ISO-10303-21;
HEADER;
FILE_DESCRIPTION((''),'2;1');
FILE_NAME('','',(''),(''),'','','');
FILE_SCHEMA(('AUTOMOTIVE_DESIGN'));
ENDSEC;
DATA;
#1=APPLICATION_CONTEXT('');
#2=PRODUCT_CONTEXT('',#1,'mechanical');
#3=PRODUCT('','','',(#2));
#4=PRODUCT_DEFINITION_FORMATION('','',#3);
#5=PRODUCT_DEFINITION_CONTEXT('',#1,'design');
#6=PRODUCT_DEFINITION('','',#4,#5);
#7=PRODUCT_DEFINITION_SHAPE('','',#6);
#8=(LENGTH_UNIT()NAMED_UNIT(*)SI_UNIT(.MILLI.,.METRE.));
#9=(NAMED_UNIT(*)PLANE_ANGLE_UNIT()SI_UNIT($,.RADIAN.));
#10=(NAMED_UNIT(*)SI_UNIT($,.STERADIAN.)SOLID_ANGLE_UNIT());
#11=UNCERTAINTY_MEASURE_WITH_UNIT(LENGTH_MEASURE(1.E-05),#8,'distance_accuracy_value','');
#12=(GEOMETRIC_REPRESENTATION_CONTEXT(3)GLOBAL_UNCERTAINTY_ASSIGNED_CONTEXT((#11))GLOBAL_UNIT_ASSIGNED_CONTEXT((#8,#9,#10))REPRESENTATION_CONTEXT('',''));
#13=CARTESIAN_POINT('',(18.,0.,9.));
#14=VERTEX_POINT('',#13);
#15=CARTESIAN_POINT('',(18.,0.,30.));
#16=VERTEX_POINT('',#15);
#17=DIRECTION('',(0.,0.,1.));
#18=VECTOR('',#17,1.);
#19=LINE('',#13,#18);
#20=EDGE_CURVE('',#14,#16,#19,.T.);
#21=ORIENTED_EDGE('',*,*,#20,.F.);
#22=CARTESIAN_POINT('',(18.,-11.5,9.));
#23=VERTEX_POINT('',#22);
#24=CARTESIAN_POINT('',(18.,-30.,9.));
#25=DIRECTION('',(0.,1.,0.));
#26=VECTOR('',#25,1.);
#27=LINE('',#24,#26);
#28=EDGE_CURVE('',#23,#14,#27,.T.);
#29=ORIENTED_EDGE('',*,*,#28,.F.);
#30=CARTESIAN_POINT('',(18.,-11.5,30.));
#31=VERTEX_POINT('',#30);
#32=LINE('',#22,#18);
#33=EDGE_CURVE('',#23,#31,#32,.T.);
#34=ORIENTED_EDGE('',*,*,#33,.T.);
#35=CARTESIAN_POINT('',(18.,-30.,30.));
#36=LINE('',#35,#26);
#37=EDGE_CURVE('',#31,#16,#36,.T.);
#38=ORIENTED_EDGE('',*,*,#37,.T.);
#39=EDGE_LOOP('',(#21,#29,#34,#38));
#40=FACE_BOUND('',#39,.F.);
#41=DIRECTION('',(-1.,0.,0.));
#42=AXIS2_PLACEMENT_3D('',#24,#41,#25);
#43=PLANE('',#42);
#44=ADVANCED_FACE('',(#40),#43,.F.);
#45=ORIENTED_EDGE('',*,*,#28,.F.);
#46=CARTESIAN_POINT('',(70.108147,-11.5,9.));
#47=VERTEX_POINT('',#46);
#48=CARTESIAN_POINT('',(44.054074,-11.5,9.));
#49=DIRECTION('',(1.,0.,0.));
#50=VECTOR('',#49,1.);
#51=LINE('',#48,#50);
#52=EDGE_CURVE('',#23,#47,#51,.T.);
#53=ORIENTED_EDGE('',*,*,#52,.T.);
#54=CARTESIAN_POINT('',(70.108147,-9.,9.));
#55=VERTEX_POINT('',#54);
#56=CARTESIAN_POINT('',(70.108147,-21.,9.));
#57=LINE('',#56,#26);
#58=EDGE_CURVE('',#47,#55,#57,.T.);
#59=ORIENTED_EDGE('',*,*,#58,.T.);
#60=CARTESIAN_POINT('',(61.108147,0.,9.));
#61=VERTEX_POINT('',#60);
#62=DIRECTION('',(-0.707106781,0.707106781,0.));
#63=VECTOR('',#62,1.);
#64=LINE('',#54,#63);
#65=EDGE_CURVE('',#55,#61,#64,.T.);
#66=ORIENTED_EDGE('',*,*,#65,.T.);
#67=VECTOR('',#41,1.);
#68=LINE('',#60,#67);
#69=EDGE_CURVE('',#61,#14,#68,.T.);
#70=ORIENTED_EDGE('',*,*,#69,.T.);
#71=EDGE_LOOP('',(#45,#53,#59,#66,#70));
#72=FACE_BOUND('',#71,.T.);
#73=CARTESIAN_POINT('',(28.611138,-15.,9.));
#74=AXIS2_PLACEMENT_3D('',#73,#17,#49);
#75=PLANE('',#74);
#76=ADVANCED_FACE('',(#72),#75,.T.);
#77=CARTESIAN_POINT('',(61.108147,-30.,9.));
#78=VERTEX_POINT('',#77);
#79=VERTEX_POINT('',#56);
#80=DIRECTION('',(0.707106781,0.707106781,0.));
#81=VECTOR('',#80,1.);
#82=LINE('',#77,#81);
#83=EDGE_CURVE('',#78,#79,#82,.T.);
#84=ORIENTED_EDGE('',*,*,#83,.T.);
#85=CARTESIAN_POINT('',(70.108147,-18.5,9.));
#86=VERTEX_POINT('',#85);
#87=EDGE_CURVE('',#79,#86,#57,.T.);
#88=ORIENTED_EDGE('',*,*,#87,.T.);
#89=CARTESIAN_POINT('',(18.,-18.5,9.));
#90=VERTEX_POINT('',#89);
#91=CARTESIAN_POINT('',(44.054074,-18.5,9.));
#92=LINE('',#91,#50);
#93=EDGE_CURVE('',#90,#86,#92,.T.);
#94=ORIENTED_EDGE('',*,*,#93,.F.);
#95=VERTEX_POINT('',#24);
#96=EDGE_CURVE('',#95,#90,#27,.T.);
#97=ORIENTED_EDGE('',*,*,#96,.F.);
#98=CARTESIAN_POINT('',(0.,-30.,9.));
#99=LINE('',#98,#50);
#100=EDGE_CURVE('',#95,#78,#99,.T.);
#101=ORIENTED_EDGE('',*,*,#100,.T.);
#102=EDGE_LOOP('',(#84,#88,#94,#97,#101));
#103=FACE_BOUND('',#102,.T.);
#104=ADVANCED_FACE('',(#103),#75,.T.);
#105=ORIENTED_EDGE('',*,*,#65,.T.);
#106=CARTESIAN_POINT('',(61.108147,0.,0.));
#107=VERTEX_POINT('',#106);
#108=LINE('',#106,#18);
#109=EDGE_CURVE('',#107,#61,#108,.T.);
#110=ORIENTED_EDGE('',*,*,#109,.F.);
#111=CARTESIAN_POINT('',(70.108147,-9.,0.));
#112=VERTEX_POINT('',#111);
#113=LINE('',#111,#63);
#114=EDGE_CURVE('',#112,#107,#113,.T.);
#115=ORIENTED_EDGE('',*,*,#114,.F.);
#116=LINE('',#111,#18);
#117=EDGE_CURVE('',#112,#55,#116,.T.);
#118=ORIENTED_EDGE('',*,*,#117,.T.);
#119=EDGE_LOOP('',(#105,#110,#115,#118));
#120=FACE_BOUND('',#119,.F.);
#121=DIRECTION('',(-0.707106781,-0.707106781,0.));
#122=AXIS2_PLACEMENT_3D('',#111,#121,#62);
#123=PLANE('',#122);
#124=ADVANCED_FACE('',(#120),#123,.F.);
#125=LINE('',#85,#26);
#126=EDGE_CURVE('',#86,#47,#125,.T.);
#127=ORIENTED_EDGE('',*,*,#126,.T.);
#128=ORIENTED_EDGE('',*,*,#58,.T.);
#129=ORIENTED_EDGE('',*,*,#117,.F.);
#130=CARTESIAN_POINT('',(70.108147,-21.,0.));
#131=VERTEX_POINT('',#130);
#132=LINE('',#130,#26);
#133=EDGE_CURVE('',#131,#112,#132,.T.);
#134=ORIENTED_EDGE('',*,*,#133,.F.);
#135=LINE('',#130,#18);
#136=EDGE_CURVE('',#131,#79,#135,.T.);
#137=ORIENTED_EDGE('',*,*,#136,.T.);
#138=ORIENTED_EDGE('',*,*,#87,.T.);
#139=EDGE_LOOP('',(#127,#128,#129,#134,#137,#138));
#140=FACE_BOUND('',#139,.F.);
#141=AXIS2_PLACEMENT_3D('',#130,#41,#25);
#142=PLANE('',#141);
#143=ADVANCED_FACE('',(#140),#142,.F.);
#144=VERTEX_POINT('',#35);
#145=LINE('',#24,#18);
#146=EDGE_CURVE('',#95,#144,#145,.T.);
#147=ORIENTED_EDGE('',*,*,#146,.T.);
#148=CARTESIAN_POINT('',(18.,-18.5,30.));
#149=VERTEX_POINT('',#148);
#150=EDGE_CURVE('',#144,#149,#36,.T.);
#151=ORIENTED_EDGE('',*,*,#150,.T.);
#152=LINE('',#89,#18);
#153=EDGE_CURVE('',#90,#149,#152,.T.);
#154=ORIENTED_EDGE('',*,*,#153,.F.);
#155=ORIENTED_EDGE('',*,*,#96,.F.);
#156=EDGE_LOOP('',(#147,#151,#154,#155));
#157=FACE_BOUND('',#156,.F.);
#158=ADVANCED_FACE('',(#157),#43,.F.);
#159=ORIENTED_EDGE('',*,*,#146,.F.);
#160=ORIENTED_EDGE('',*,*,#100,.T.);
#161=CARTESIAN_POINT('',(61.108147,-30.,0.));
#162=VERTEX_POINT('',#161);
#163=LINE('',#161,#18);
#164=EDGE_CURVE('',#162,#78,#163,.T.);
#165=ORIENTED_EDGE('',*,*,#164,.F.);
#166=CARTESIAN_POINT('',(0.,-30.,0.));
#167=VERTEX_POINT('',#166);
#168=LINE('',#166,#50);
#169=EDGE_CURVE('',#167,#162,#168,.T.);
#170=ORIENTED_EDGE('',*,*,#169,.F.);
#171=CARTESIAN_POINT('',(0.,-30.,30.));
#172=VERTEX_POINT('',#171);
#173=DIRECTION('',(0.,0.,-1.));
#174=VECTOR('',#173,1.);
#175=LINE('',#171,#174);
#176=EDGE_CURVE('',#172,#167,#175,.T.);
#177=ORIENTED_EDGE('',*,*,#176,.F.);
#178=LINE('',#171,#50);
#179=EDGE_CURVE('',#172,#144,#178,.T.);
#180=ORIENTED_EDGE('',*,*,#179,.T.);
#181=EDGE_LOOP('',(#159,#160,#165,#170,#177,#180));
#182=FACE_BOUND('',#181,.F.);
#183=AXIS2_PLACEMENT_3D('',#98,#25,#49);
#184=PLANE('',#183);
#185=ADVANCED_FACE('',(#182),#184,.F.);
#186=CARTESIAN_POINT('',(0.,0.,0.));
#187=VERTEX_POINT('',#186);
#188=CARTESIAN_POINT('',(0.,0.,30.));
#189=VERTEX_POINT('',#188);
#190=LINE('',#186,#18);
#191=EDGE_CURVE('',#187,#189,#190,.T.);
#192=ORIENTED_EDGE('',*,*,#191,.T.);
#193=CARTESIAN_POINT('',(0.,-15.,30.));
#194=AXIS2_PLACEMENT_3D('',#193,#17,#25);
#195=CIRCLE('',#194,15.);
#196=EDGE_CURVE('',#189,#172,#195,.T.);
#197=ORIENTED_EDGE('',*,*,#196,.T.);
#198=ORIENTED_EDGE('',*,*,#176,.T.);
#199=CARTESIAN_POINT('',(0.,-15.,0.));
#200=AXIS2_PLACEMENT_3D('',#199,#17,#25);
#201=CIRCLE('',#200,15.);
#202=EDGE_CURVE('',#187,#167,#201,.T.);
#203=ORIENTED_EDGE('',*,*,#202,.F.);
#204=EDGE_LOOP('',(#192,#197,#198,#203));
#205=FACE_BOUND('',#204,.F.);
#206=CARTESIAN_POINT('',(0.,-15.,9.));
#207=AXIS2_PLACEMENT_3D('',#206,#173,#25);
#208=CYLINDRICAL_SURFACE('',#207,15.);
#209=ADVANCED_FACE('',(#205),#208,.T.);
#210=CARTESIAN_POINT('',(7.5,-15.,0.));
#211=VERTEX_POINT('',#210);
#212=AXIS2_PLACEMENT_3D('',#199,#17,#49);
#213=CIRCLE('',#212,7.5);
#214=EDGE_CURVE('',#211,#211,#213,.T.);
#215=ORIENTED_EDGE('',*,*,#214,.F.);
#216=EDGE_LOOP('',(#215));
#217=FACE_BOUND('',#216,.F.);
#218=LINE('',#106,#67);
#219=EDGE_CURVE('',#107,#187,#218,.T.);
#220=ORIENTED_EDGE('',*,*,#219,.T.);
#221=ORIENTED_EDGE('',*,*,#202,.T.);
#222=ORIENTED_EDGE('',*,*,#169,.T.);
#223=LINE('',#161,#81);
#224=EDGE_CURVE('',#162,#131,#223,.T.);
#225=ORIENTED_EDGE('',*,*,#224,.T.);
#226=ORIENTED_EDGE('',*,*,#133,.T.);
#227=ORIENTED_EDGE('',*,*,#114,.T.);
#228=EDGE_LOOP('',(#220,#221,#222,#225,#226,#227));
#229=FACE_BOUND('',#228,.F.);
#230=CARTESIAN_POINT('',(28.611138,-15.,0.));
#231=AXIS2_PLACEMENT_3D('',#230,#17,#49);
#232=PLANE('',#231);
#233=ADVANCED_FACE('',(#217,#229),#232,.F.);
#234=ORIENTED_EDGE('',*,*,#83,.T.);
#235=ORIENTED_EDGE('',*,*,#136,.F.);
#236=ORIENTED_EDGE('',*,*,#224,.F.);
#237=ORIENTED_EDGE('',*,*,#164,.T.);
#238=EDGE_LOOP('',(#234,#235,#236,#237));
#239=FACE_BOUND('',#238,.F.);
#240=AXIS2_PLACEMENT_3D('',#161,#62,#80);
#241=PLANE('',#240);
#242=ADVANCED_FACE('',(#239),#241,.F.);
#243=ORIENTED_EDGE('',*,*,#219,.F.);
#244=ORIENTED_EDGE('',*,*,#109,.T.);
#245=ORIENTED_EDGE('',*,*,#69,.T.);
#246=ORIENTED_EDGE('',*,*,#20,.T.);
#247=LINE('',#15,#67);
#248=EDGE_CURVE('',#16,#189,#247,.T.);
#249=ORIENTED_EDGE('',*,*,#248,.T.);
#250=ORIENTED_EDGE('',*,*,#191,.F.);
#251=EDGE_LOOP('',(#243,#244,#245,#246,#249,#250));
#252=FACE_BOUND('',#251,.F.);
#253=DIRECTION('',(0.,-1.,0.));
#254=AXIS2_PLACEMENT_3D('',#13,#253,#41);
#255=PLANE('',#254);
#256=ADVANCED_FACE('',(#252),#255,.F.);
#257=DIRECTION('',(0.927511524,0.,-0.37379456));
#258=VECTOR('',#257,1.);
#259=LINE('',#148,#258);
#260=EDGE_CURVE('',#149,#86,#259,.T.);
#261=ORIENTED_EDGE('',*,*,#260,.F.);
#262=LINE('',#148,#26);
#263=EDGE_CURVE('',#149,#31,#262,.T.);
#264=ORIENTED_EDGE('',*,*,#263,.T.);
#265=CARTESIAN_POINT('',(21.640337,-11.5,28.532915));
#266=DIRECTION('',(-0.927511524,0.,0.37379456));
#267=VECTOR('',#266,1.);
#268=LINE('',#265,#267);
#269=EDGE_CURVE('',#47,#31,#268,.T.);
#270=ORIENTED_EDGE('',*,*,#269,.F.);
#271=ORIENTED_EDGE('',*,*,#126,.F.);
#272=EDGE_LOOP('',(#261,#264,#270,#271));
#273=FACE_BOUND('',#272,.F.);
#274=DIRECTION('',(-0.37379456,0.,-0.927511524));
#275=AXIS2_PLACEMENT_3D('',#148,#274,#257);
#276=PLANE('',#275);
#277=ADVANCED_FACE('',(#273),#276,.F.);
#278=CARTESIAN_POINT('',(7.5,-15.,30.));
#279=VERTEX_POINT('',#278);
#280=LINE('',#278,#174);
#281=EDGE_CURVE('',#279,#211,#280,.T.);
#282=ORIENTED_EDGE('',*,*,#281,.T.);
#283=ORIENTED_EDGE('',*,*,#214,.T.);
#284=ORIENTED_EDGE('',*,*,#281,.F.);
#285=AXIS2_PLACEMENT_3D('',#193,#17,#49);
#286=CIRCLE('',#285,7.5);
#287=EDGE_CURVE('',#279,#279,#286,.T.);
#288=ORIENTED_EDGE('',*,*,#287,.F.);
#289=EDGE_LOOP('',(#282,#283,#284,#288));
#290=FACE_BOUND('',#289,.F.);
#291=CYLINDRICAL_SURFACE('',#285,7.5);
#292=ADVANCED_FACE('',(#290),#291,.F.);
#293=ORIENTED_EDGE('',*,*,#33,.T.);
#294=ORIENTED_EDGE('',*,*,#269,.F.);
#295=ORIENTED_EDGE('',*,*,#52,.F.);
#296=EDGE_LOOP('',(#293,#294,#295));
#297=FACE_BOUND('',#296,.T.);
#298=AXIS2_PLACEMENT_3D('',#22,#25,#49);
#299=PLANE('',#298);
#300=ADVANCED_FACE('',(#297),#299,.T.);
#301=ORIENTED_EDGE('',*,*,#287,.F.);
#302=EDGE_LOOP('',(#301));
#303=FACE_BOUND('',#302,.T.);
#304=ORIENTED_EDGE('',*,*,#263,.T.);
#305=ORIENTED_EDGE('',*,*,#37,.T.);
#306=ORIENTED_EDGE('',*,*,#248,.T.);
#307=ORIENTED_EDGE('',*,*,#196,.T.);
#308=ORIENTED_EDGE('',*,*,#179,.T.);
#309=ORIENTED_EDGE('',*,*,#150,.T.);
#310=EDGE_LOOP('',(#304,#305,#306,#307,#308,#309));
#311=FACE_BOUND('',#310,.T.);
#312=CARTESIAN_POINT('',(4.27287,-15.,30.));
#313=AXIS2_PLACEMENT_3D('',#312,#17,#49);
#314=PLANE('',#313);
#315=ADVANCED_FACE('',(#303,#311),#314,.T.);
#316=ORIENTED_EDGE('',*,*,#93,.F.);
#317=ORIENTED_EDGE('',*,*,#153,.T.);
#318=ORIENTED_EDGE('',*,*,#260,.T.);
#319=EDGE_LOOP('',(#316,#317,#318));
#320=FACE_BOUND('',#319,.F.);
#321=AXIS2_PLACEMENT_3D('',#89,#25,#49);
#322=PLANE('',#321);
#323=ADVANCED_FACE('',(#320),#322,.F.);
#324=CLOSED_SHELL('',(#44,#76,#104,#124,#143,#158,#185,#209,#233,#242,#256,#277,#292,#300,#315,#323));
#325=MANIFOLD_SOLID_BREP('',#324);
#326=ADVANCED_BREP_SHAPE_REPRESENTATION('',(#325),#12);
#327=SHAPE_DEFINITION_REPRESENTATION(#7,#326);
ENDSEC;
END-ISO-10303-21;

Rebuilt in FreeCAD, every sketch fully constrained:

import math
import FreeCAD as App
import Part
import Sketcher


def add_polygon(sketch, points):
    """Adds a closed chain of lines whose ends are joined by coincident constraints."""
    first, n = sketch.GeometryCount, len(points)
    for a, b in zip(points, points[1:] + points[:1]):
        sketch.addGeometry(Part.LineSegment(App.Vector(*a, 0), App.Vector(*b, 0)), False)
    for i in range(n):
        sketch.addConstraint(Sketcher.Constraint("Coincident", first + i, 2, first + (i + 1) % n, 1))

doc = App.newDocument("Part")
body = doc.addObject("PartDesign::Body", "Body")

# Sketch on XY plane
sketch1 = doc.addObject("Sketcher::SketchObject", "Sketch")
body.addObject(sketch1)
sketch1.AttachmentSupport = (doc.XY_Plane, [""])
sketch1.MapMode = "FlatFace"
sketch1.addGeometry(Part.LineSegment(App.Vector(61, 0, 0), App.Vector(0, 0, 0)), False)
sketch1.addGeometry(Part.ArcOfCircle(Part.Circle(App.Vector(0, -15, 0), App.Vector(0, 0, 1), 15), math.radians(90), math.radians(270)), False)
sketch1.addGeometry(Part.LineSegment(App.Vector(0, -30, 0), App.Vector(61, -30, 0)), False)
sketch1.addGeometry(Part.LineSegment(App.Vector(61, -30, 0), App.Vector(70, -21, 0)), False)
sketch1.addGeometry(Part.LineSegment(App.Vector(70, -21, 0), App.Vector(70, -9, 0)), False)
sketch1.addGeometry(Part.LineSegment(App.Vector(70, -9, 0), App.Vector(61, 0, 0)), False)
sketch1.addConstraint(Sketcher.Constraint("Tangent", 0, 2, 1, 1))
sketch1.addConstraint(Sketcher.Constraint("Tangent", 1, 2, 2, 1))
sketch1.addConstraint(Sketcher.Constraint("Coincident", 2, 2, 3, 1))
sketch1.addConstraint(Sketcher.Constraint("Coincident", 3, 2, 4, 1))
sketch1.addConstraint(Sketcher.Constraint("Coincident", 4, 2, 5, 1))
sketch1.addConstraint(Sketcher.Constraint("Coincident", 5, 2, 0, 1))
sketch1.addConstraint(Sketcher.Constraint("Horizontal", 0))
sketch1.addConstraint(Sketcher.Constraint("Horizontal", 2))
sketch1.addConstraint(Sketcher.Constraint("Vertical", 4))
sketch1.addConstraint(Sketcher.Constraint("Coincident", 0, 2, -1, 1))
sketch1.addConstraint(Sketcher.Constraint("Perpendicular", 3, 5))
sketch1.addConstraint(Sketcher.Constraint("Vertical", 2, 2, 5, 2))
sketch1.addConstraint(Sketcher.Constraint("Equal", 3, 5))
sketch1.addConstraint(Sketcher.Constraint("Radius", 1, 15.0))
sketch1.addConstraint(Sketcher.Constraint("DistanceY", 4, 1, 4, 2, 12.0))
sketch1.addConstraint(Sketcher.Constraint("DistanceX", 0, 2, 0, 1, 61.108147))
pad1 = doc.addObject("PartDesign::Pad", "Pad")
body.addObject(pad1)
pad1.Profile = sketch1
pad1.Length = 9

# Sketch on XY plane
sketch2 = doc.addObject("Sketcher::SketchObject", "Sketch001")
body.addObject(sketch2)
sketch2.AttachmentSupport = (doc.XY_Plane, [""])
sketch2.MapMode = "FlatFace"
sketch2.AttachmentOffset = App.Placement(App.Vector(0, 0, 9), App.Rotation())
sketch2.addGeometry(Part.LineSegment(App.Vector(18, -30, 0), App.Vector(18, 0, 0)), False)
sketch2.addGeometry(Part.LineSegment(App.Vector(18, 0, 0), App.Vector(0, 0, 0)), False)
sketch2.addGeometry(Part.ArcOfCircle(Part.Circle(App.Vector(0, -15, 0), App.Vector(0, 0, 1), 15), math.radians(90), math.radians(270)), False)
sketch2.addGeometry(Part.LineSegment(App.Vector(0, -30, 0), App.Vector(18, -30, 0)), False)
sketch2.addConstraint(Sketcher.Constraint("Coincident", 0, 2, 1, 1))
sketch2.addConstraint(Sketcher.Constraint("Tangent", 1, 2, 2, 1))
sketch2.addConstraint(Sketcher.Constraint("Tangent", 2, 2, 3, 1))
sketch2.addConstraint(Sketcher.Constraint("Coincident", 3, 2, 0, 1))
sketch2.addConstraint(Sketcher.Constraint("Vertical", 0))
sketch2.addConstraint(Sketcher.Constraint("Horizontal", 1))
sketch2.addConstraint(Sketcher.Constraint("Horizontal", 3))
sketch2.addConstraint(Sketcher.Constraint("Coincident", 1, 2, -1, 1))
sketch2.addConstraint(Sketcher.Constraint("Radius", 2, 15.0))
sketch2.addConstraint(Sketcher.Constraint("DistanceX", 1, 2, 1, 1, 18.0))
pad2 = doc.addObject("PartDesign::Pad", "Pad001")
body.addObject(pad2)
pad2.Profile = sketch2
pad2.Length = 21

# Sketch on XY plane
sketch3 = doc.addObject("Sketcher::SketchObject", "Sketch002")
body.addObject(sketch3)
sketch3.AttachmentSupport = (doc.XY_Plane, [""])
sketch3.MapMode = "FlatFace"
sketch3.AttachmentOffset = App.Placement(App.Vector(0, 0, 30), App.Rotation())
sketch3.addGeometry(Part.Circle(App.Vector(0, -15, 0), App.Vector(0, 0, 1), 8), False)
sketch3.addConstraint(Sketcher.Constraint("PointOnObject", 0, 3, -2))
sketch3.addConstraint(Sketcher.Constraint("Diameter", 0, 15.0))
sketch3.addConstraint(Sketcher.Constraint("DistanceY", 0, 3, -1, 1, 15.0))
pocket1 = doc.addObject("PartDesign::Pocket", "Pocket")
body.addObject(pocket1)
pocket1.Profile = sketch3
pocket1.Length = 37.3

# Sketch on XY plane
sketch4 = doc.addObject("Sketcher::SketchObject", "Sketch003")
body.addObject(sketch4)
sketch4.AttachmentSupport = (doc.XY_Plane, [""])
sketch4.MapMode = "FlatFace"
sketch4.AttachmentOffset = App.Placement(App.Vector(0, 0, 9), App.Rotation())
add_polygon(sketch4, [(18, -12), (18, -18), (70, -18), (70, -12)])  # lines 0-3
sketch4.addConstraint(Sketcher.Constraint("Vertical", 0))
sketch4.addConstraint(Sketcher.Constraint("Horizontal", 1))
sketch4.addConstraint(Sketcher.Constraint("Vertical", 2))
sketch4.addConstraint(Sketcher.Constraint("Horizontal", 3))
sketch4.addConstraint(Sketcher.Constraint("DistanceY", 0, 2, 0, 1, 7.0))
sketch4.addConstraint(Sketcher.Constraint("DistanceX", -1, 1, 0, 2, 18.0))
sketch4.addConstraint(Sketcher.Constraint("DistanceY", 0, 2, -1, 1, 18.5))
sketch4.addConstraint(Sketcher.Constraint("DistanceX", 1, 1, 1, 2, 52.108147))
pad3 = doc.addObject("PartDesign::Pad", "Pad002")
body.addObject(pad3)
pad3.Profile = sketch4
pad3.Length = 21

# Sketch on XZ plane
sketch5 = doc.addObject("Sketcher::SketchObject", "Sketch004")
body.addObject(sketch5)
sketch5.AttachmentSupport = (doc.XZ_Plane, [""])
sketch5.MapMode = "FlatFace"
sketch5.AttachmentOffset = App.Placement(App.Vector(0, 0, 18.5), App.Rotation())
add_polygon(sketch5, [(70, 30), (18, 30), (70, 9)])  # lines 0-2
sketch5.addConstraint(Sketcher.Constraint("Horizontal", 0))
sketch5.addConstraint(Sketcher.Constraint("Vertical", 2))
sketch5.addConstraint(Sketcher.Constraint("DistanceY", 2, 1, 2, 2, 21.0))
sketch5.addConstraint(Sketcher.Constraint("DistanceX", -1, 1, 0, 2, 18.0))
sketch5.addConstraint(Sketcher.Constraint("DistanceY", -1, 1, 0, 2, 30.0))
sketch5.addConstraint(Sketcher.Constraint("DistanceX", 0, 2, 0, 1, 52.108147))
pocket2 = doc.addObject("PartDesign::Pocket", "Pocket001")
body.addObject(pocket2)
pocket2.Profile = sketch5
pocket2.Length = 25

doc.recompute()
